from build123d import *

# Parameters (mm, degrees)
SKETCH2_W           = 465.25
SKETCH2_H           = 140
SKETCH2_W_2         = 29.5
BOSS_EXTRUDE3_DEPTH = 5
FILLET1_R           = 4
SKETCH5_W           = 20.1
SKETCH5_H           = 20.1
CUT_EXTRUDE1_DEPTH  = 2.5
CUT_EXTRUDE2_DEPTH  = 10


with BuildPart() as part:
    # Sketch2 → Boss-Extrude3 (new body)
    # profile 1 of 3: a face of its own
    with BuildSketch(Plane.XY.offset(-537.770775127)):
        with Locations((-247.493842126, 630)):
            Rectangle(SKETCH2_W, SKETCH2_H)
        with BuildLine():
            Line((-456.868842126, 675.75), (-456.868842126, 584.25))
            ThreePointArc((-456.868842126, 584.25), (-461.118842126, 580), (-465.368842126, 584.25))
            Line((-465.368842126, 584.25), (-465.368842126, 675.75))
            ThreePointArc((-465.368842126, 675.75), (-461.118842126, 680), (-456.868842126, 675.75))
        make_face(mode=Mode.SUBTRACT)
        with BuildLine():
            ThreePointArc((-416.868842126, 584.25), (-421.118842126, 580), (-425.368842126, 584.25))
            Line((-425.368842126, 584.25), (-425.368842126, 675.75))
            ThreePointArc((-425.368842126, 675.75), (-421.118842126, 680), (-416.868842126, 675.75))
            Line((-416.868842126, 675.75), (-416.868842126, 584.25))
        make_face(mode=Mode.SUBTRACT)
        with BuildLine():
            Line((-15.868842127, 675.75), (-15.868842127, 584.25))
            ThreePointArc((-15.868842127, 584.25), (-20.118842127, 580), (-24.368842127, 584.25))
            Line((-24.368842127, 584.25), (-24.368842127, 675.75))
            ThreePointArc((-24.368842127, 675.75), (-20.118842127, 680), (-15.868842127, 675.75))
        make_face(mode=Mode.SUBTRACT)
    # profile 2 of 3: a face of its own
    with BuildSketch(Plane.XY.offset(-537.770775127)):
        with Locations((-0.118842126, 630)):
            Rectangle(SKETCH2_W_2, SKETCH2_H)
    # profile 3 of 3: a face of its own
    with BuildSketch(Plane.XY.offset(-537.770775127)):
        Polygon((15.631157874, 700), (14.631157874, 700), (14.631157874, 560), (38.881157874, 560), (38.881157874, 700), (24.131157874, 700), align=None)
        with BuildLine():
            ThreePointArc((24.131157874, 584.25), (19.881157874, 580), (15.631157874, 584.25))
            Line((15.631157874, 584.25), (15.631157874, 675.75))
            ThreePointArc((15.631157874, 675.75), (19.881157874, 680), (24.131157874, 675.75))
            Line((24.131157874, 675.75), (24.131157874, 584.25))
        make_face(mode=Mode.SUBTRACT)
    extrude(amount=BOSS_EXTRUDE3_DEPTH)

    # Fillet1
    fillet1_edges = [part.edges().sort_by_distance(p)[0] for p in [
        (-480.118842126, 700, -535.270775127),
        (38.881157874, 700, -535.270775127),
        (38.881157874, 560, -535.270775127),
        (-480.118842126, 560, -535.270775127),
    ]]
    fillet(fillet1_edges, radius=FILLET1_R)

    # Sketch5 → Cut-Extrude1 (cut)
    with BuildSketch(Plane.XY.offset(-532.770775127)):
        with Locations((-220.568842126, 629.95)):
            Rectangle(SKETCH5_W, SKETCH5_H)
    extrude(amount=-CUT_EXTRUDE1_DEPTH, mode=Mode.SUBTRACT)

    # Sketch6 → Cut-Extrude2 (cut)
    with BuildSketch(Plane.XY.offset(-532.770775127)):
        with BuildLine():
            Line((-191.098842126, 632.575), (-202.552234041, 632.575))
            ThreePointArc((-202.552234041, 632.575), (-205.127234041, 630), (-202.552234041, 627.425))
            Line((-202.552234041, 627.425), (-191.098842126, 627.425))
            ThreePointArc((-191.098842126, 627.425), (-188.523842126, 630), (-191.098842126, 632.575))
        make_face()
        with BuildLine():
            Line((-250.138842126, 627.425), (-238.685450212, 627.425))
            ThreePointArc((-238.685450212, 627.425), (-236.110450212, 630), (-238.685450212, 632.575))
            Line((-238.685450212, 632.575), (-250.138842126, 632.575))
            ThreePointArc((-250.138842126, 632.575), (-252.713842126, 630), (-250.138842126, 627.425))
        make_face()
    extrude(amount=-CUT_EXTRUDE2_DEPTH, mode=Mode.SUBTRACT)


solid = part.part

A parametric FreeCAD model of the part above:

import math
import FreeCAD as App
import Part
import Sketcher


def edges_at(feature, points):
    """Names of the edges that pass closest to the given points."""
    edges = feature.Shape.Edges
    near = lambda p: min(range(len(edges)), key=lambda i: edges[i].distToShape(Part.Vertex(*p))[0])
    return sorted({f"Edge{near(p) + 1}" for p in points})


def add_polygon(sketch, points):
    """Adds a closed chain of lines whose ends are joined by coincident constraints."""
    first, n = sketch.GeometryCount, len(points)
    for a, b in zip(points, points[1:] + points[:1]):
        sketch.addGeometry(Part.LineSegment(App.Vector(*a, 0), App.Vector(*b, 0)), False)
    for i in range(n):
        sketch.addConstraint(Sketcher.Constraint("Coincident", first + i, 2, first + (i + 1) % n, 1))

doc = App.newDocument("Part")
body = doc.addObject("PartDesign::Body", "Body")

# Sketch on XY plane
sketch1 = body.newObject("Sketcher::SketchObject", "Sketch")
sketch1.AttachmentSupport = (doc.getObject("XY_Plane"), [""])
sketch1.MapMode = "FlatFace"
sketch1.AttachmentOffset = App.Placement(App.Vector(0, 0, -537.770775), App.Rotation())
add_polygon(sketch1, [(-480.1, 700), (-480.1, 560), (38.9, 560), (38.9, 700)])  # lines 0-3
sketch1.addGeometry(Part.ArcOfCircle(Part.Circle(App.Vector(-461.1, 675.8, 0), App.Vector(0, 0, 1), 4.2), math.radians(0), math.radians(180)), False)  # 4
sketch1.addGeometry(Part.LineSegment(App.Vector(-456.9, 675.8, 0), App.Vector(-456.9, 584.2, 0)), False)  # 5
sketch1.addGeometry(Part.ArcOfCircle(Part.Circle(App.Vector(-461.1, 584.2, 0), App.Vector(0, 0, 1), 4.2), math.radians(180), math.radians(360)), False)  # 6
sketch1.addGeometry(Part.LineSegment(App.Vector(-465.4, 584.2, 0), App.Vector(-465.4, 675.8, 0)), False)  # 7
sketch1.addGeometry(Part.LineSegment(App.Vector(-416.9, 675.8, 0), App.Vector(-416.9, 584.2, 0)), False)  # 8
sketch1.addGeometry(Part.ArcOfCircle(Part.Circle(App.Vector(-421.1, 584.2, 0), App.Vector(0, 0, 1), 4.2), math.radians(180), math.radians(360)), False)  # 9
sketch1.addGeometry(Part.LineSegment(App.Vector(-425.4, 584.2, 0), App.Vector(-425.4, 675.8, 0)), False)  # 10
sketch1.addGeometry(Part.ArcOfCircle(Part.Circle(App.Vector(-421.1, 675.8, 0), App.Vector(0, 0, 1), 4.2), math.radians(0), math.radians(180)), False)  # 11
sketch1.addGeometry(Part.ArcOfCircle(Part.Circle(App.Vector(-20.1, 675.8, 0), App.Vector(0, 0, 1), 4.2), math.radians(0), math.radians(180)), False)  # 12
sketch1.addGeometry(Part.LineSegment(App.Vector(-15.9, 675.8, 0), App.Vector(-15.9, 584.2, 0)), False)  # 13
sketch1.addGeometry(Part.ArcOfCircle(Part.Circle(App.Vector(-20.1, 584.2, 0), App.Vector(0, 0, 1), 4.2), math.radians(180), math.radians(360)), False)  # 14
sketch1.addGeometry(Part.LineSegment(App.Vector(-24.4, 584.2, 0), App.Vector(-24.4, 675.8, 0)), False)  # 15
sketch1.addGeometry(Part.ArcOfCircle(Part.Circle(App.Vector(19.9, 584.2, 0), App.Vector(0, 0, 1), 4.2), math.radians(180), math.radians(360)), False)  # 16
sketch1.addGeometry(Part.LineSegment(App.Vector(15.6, 584.2, 0), App.Vector(15.6, 675.8, 0)), False)  # 17
sketch1.addGeometry(Part.ArcOfCircle(Part.Circle(App.Vector(19.9, 675.8, 0), App.Vector(0, 0, 1), 4.2), math.radians(0), math.radians(180)), False)  # 18
sketch1.addGeometry(Part.LineSegment(App.Vector(24.1, 675.8, 0), App.Vector(24.1, 584.2, 0)), False)  # 19
sketch1.addConstraint([
    Sketcher.Constraint("Tangent", 4, 1, 5, 1),
    Sketcher.Constraint("Tangent", 5, 2, 6, 2),
    Sketcher.Constraint("Tangent", 6, 1, 7, 1),
    Sketcher.Constraint("Tangent", 7, 2, 4, 2),
    Sketcher.Constraint("Tangent", 8, 2, 9, 2),
    Sketcher.Constraint("Tangent", 9, 1, 10, 1),
    Sketcher.Constraint("Tangent", 10, 2, 11, 2),
    Sketcher.Constraint("Tangent", 11, 1, 8, 1),
    Sketcher.Constraint("Tangent", 12, 1, 13, 1),
    Sketcher.Constraint("Tangent", 13, 2, 14, 2),
    Sketcher.Constraint("Tangent", 14, 1, 15, 1),
    Sketcher.Constraint("Tangent", 15, 2, 12, 2),
    Sketcher.Constraint("Tangent", 16, 1, 17, 1),
    Sketcher.Constraint("Tangent", 17, 2, 18, 2),
    Sketcher.Constraint("Tangent", 18, 1, 19, 1),
    Sketcher.Constraint("Tangent", 19, 2, 16, 2),
    Sketcher.Constraint("Vertical", 0),
    Sketcher.Constraint("Horizontal", 1),
    Sketcher.Constraint("Vertical", 2),
    Sketcher.Constraint("Horizontal", 3),
    Sketcher.Constraint("Vertical", 5),
    Sketcher.Constraint("Vertical", 7),
    Sketcher.Constraint("Vertical", 8),
    Sketcher.Constraint("Vertical", 10),
    Sketcher.Constraint("Vertical", 13),
    Sketcher.Constraint("Vertical", 15),
    Sketcher.Constraint("Vertical", 17),
    Sketcher.Constraint("Vertical", 19),
    Sketcher.Constraint("Equal", 6, 9),
    Sketcher.Constraint("Equal", 11, 12),
    Sketcher.Constraint("Equal", 14, 16),
    Sketcher.Constraint("Horizontal", 6, 3, 9, 3),
    Sketcher.Constraint("Horizontal", 4, 3, 11, 3),
    Sketcher.Constraint("Horizontal", 11, 3, 12, 3),
    Sketcher.Constraint("Horizontal", 9, 3, 14, 3),
    Sketcher.Constraint("Horizontal", 14, 3, 16, 3),
    Sketcher.Constraint("Horizontal", 12, 3, 18, 3),
    Sketcher.Constraint("DistanceX", 1, 1, 1, 2, 519.0),
    Sketcher.Constraint("DistanceY", 0, 2, 0, 1, 140.0),
    Sketcher.Constraint("Radius", 4, 4.25),
    Sketcher.Constraint("DistanceY", 5, 2, 5, 1, 91.5),
    Sketcher.Constraint("DistanceY", -1, 1, 0, 2, 560.0),
    Sketcher.Constraint("DistanceX", 6, 3, 9, 3, 40.0),
    Sketcher.Constraint("DistanceX", 11, 3, 12, 3, 401.0),
    Sketcher.Constraint("DistanceX", 14, 3, 16, 3, 40.0),
    Sketcher.Constraint("DistanceX", 0, 2, 6, 3, 19.0),
    Sketcher.Constraint("DistanceY", -1, 1, 4, 3, 675.75),
    Sketcher.Constraint("DistanceX", 4, 3, -1, 1, 461.118842),
])
pad1 = body.newObject("PartDesign::Pad", "Pad")
pad1.Profile = sketch1
pad1.Length = 5
doc.recompute()

fillet = body.newObject("PartDesign::Fillet", "Fillet")
fillet.Base = (pad1, edges_at(pad1, [
    (-480.119, 700, -535.271),
    (38.881, 700, -535.271),
    (38.881, 560, -535.271),
    (-480.119, 560, -535.271),
]))
fillet.Radius = 4

# Sketch on XY plane
sketch2 = body.newObject("Sketcher::SketchObject", "Sketch001")
sketch2.AttachmentSupport = (doc.getObject("XY_Plane"), [""])
sketch2.MapMode = "FlatFace"
sketch2.AttachmentOffset = App.Placement(App.Vector(0, 0, -532.770775), App.Rotation())
add_polygon(sketch2, [(-231, 640), (-231, 620), (-211, 620), (-211, 640)])  # lines 0-3
sketch2.addConstraint([
    Sketcher.Constraint("Vertical", 0),
    Sketcher.Constraint("Horizontal", 1),
    Sketcher.Constraint("Vertical", 2),
    Sketcher.Constraint("Horizontal", 3),
    Sketcher.Constraint("Equal", 3, 0),
    Sketcher.Constraint("DistanceX", 1, 1, 1, 2, 20.1),
    Sketcher.Constraint("DistanceY", -1, 1, 2, 2, 640.0),
    Sketcher.Constraint("DistanceX", 0, 2, -1, 1, 230.618842),
])
pocket1 = body.newObject("PartDesign::Pocket", "Pocket")
pocket1.Profile = sketch2
pocket1.Length = 2.5

# Sketch on XY plane
sketch3 = body.newObject("Sketcher::SketchObject", "Sketch002")
sketch3.AttachmentSupport = (doc.getObject("XY_Plane"), [""])
sketch3.MapMode = "FlatFace"
sketch3.AttachmentOffset = App.Placement(App.Vector(0, 0, -532.770775), App.Rotation())
sketch3.addGeometry([
    Part.LineSegment(App.Vector(-191.1, 632.6, 0), App.Vector(-202.6, 632.6, 0)),  # 0
    Part.ArcOfCircle(Part.Circle(App.Vector(-202.6, 630, 0), App.Vector(0, 0, 1), 2.6), math.radians(90), math.radians(270)),  # 1
    Part.LineSegment(App.Vector(-202.6, 627.4, 0), App.Vector(-191.1, 627.4, 0)),  # 2
    Part.ArcOfCircle(Part.Circle(App.Vector(-191.1, 630, 0), App.Vector(0, 0, 1), 2.6), math.radians(-90), math.radians(90)),  # 3
    Part.LineSegment(App.Vector(-250.1, 627.4, 0), App.Vector(-238.7, 627.4, 0)),  # 4
    Part.ArcOfCircle(Part.Circle(App.Vector(-238.7, 630, 0), App.Vector(0, 0, 1), 2.6), math.radians(-90), math.radians(90)),  # 5
    Part.LineSegment(App.Vector(-238.7, 632.6, 0), App.Vector(-250.1, 632.6, 0)),  # 6
    Part.ArcOfCircle(Part.Circle(App.Vector(-250.1, 630, 0), App.Vector(0, 0, 1), 2.6), math.radians(90), math.radians(270)),  # 7
], False)
sketch3.addConstraint([
    Sketcher.Constraint("Tangent", 0, 2, 1, 1),
    Sketcher.Constraint("Tangent", 1, 2, 2, 1),
    Sketcher.Constraint("Tangent", 2, 2, 3, 1),
    Sketcher.Constraint("Tangent", 3, 2, 0, 1),
    Sketcher.Constraint("Tangent", 4, 2, 5, 1),
    Sketcher.Constraint("Tangent", 5, 2, 6, 1),
    Sketcher.Constraint("Tangent", 6, 2, 7, 1),
    Sketcher.Constraint("Tangent", 7, 2, 4, 1),
    Sketcher.Constraint("Horizontal", 0),
    Sketcher.Constraint("Horizontal", 2),
    Sketcher.Constraint("Horizontal", 4),
    Sketcher.Constraint("Horizontal", 6),
    Sketcher.Constraint("Equal", 3, 5),
    Sketcher.Constraint("Horizontal", 3, 3, 5, 3),
    Sketcher.Constraint("Equal", 2, 4),
    Sketcher.Constraint("DistanceY", -1, 1, 1, 3, 630.0),
    Sketcher.Constraint("Radius", 1, 2.575),
    Sketcher.Constraint("DistanceX", 7, 3, 3, 3, 59.04),
    Sketcher.Constraint("DistanceX", 0, 2, 0, 1, 11.453392),
    Sketcher.Constraint("DistanceX", 5, 3, -1, 1, 238.68545),
])
pocket2 = body.newObject("PartDesign::Pocket", "Pocket001")
pocket2.Profile = sketch3
pocket2.Length = 10

doc.recompute()
